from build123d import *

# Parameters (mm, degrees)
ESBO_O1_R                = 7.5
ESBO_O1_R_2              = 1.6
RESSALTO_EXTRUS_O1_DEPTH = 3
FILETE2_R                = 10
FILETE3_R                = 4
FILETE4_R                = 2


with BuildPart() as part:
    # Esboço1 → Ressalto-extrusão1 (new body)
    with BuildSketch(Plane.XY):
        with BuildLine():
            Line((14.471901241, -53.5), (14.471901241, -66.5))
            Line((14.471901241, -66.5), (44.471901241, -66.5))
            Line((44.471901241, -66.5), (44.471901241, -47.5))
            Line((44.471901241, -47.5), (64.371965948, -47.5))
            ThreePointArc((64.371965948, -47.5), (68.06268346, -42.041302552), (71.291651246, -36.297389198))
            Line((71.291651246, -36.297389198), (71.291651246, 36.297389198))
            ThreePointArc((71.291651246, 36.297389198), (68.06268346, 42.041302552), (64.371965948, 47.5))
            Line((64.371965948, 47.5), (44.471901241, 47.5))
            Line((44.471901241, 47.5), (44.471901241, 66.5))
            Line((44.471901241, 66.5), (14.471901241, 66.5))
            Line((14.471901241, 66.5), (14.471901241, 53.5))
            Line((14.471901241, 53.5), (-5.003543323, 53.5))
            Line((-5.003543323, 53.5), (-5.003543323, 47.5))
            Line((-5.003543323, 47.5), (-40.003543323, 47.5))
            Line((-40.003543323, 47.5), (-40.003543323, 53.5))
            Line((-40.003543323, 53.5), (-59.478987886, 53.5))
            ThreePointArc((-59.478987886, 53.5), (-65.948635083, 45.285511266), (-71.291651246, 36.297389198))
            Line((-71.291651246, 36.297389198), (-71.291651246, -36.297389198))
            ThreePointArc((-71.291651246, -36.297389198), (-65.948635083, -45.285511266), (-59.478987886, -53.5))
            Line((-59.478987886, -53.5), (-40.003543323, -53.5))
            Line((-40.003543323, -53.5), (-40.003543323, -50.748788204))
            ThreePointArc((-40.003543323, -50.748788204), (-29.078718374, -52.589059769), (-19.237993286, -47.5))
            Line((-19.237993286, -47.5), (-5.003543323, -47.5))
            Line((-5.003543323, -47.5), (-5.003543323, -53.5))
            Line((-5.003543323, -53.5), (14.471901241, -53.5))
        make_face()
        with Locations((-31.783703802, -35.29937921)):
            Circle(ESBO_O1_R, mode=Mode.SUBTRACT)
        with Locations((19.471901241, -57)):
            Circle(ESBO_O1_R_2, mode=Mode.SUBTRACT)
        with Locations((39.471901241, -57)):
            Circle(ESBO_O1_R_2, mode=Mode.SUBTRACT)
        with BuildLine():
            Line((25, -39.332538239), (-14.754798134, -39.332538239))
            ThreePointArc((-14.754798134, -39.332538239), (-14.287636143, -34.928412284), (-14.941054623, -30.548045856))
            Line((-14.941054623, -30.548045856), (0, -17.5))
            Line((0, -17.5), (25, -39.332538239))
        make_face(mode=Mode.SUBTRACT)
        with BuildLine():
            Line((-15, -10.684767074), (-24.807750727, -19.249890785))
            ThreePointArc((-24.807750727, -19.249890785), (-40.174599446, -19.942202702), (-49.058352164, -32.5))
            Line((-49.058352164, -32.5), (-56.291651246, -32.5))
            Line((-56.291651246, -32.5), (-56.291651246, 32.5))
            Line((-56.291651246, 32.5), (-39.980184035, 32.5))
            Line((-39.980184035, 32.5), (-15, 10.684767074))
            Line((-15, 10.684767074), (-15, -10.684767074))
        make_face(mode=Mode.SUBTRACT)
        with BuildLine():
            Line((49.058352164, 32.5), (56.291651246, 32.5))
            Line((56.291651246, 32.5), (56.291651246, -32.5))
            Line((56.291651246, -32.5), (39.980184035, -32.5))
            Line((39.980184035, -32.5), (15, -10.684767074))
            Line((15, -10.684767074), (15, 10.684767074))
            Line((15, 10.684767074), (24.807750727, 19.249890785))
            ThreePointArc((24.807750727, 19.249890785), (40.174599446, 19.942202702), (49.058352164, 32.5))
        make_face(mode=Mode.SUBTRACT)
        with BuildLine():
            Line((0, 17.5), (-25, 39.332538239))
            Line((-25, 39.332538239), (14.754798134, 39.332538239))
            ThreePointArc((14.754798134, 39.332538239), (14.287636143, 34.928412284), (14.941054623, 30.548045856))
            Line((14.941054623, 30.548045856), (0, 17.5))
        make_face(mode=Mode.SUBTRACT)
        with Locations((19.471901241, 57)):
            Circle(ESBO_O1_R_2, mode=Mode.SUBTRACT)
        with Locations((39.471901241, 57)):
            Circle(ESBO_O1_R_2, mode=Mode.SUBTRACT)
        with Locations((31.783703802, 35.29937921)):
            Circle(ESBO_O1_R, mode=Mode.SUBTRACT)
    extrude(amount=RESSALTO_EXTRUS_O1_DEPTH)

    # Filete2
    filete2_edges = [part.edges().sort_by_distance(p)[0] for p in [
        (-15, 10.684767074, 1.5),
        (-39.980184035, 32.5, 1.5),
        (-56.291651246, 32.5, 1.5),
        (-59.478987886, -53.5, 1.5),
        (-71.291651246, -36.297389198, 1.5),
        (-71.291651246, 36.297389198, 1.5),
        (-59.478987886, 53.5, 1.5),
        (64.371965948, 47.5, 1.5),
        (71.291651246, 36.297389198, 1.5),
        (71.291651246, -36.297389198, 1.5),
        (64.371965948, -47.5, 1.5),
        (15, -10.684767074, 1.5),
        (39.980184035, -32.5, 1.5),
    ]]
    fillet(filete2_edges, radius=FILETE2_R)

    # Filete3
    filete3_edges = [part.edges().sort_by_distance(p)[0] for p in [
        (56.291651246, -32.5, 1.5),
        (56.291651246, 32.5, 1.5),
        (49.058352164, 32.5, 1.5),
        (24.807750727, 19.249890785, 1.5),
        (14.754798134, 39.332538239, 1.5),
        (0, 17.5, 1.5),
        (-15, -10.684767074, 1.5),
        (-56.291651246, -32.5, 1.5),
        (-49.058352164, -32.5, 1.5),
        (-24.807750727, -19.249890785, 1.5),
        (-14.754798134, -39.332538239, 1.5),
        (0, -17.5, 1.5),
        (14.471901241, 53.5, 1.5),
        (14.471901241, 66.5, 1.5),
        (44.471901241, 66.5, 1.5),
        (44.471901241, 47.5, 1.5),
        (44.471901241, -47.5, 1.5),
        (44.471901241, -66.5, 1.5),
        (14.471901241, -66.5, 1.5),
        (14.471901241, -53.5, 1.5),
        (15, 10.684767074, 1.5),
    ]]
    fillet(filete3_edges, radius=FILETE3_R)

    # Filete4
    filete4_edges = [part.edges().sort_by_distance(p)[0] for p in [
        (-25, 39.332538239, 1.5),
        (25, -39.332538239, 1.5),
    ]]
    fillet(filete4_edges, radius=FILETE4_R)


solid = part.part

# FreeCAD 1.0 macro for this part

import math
import FreeCAD as App
import Part
import Sketcher

V = App.Vector
Q = App.Units.Quantity


def edges_at(feature, points):
    """Names of the edges that pass closest to the given points."""
    edges = feature.Shape.Edges
    near = lambda p: min(range(len(edges)), key=lambda i: edges[i].distToShape(Part.Vertex(*p))[0])
    return sorted({f"Edge{near(p) + 1}" for p in points})

doc = App.newDocument("Part")
body = doc.addObject("PartDesign::Body", "Body")

# Sketch on XY plane
sketch1 = body.newObject("Sketcher::SketchObject", "Sketch")
sketch1.AttachmentSupport = (doc.getObject("XY_Plane"), [""])
sketch1.MapMode = "FlatFace"
sketch1.addGeometry([
    Part.LineSegment(V(14.5, -53.5, 0), V(14.5, -66.5, 0)),  # 0
    Part.LineSegment(V(14.5, -66.5, 0), V(44.5, -66.5, 0)),  # 1
    Part.LineSegment(V(44.5, -66.5, 0), V(44.5, -47.5, 0)),  # 2
    Part.LineSegment(V(44.5, -47.5, 0), V(64.4, -47.5, 0)),  # 3
    Part.ArcOfCircle(Part.Circle(V(0, 0, 0), V(0, 0, 1), 80), math.radians(-36.42), math.radians(-26.98)),  # 4
    Part.LineSegment(V(71.3, -36.3, 0), V(71.3, 36.3, 0)),  # 5
    Part.ArcOfCircle(Part.Circle(V(0, 0, 0), V(0, 0, 1), 80), math.radians(26.98), math.radians(36.42)),  # 6
    Part.LineSegment(V(64.4, 47.5, 0), V(44.5, 47.5, 0)),  # 7
    Part.LineSegment(V(44.5, 47.5, 0), V(44.5, 66.5, 0)),  # 8
    Part.LineSegment(V(44.5, 66.5, 0), V(14.5, 66.5, 0)),  # 9
    Part.LineSegment(V(14.5, 66.5, 0), V(14.5, 53.5, 0)),  # 10
    Part.LineSegment(V(14.5, 53.5, 0), V(-5, 53.5, 0)),  # 11
    Part.LineSegment(V(-5, 53.5, 0), V(-5, 47.5, 0)),  # 12
    Part.LineSegment(V(-5, 47.5, 0), V(-40, 47.5, 0)),  # 13
    Part.LineSegment(V(-40, 47.5, 0), V(-40, 53.5, 0)),  # 14
    Part.LineSegment(V(-40, 53.5, 0), V(-59.5, 53.5, 0)),  # 15
    Part.ArcOfCircle(Part.Circle(V(0, 0, 0), V(0, 0, 1), 80), math.radians(138.03), math.radians(153.02)),  # 16
    Part.LineSegment(V(-71.3, 36.3, 0), V(-71.3, -36.3, 0)),  # 17
    Part.ArcOfCircle(Part.Circle(V(0, 0, 0), V(0, 0, 1), 80), math.radians(-153.02), math.radians(-138.03)),  # 18
    Part.LineSegment(V(-59.5, -53.5, 0), V(-40, -53.5, 0)),  # 19
    Part.LineSegment(V(-40, -53.5, 0), V(-40, -50.7, 0)),  # 20
    Part.ArcOfCircle(Part.Circle(V(-31.8, -35.3, 0), V(0, 0, 1), 17.5), math.radians(-118), math.radians(-44)),  # 21
    Part.LineSegment(V(-19.2, -47.5, 0), V(-5, -47.5, 0)),  # 22
    Part.LineSegment(V(-5, -47.5, 0), V(-5, -53.5, 0)),  # 23
    Part.LineSegment(V(-5, -53.5, 0), V(14.5, -53.5, 0)),  # 24
    Part.Circle(V(-31.8, -35.3, 0), V(0, 0, 1), 7.5),  # 25
    Part.Circle(V(19.5, -57, 0), V(0, 0, 1), 1.6),  # 26
    Part.Circle(V(39.5, -57, 0), V(0, 0, 1), 1.6),  # 27
    Part.LineSegment(V(0, -17.5, 0), V(25, -39.3, 0)),  # 28
    Part.LineSegment(V(25, -39.3, 0), V(-14.8, -39.3, 0)),  # 29
    Part.ArcOfCircle(Part.Circle(V(-31.8, -35.3, 0), V(0, 0, 1), 17.5), math.radians(-13), math.radians(16)),  # 30
    Part.LineSegment(V(-14.9, -30.5, 0), V(0, -17.5, 0)),  # 31
    Part.LineSegment(V(-15, 10.7, 0), V(-15, -10.7, 0)),  # 32
    Part.LineSegment(V(-15, -10.7, 0), V(-24.8, -19.2, 0)),  # 33
    Part.ArcOfCircle(Part.Circle(V(-31.8, -35.3, 0), V(0, 0, 1), 17.5), math.radians(67), math.radians(171)),  # 34
    Part.LineSegment(V(-49.1, -32.5, 0), V(-56.3, -32.5, 0)),  # 35
    Part.LineSegment(V(-56.3, -32.5, 0), V(-56.3, 32.5, 0)),  # 36
    Part.LineSegment(V(-56.3, 32.5, 0), V(-40, 32.5, 0)),  # 37
    Part.LineSegment(V(-40, 32.5, 0), V(-15, 10.7, 0)),  # 38
    Part.LineSegment(V(14.9, 30.5, 0), V(0, 17.5, 0)),  # 39
    Part.LineSegment(V(0, 17.5, 0), V(-25, 39.3, 0)),  # 40
    Part.LineSegment(V(-25, 39.3, 0), V(14.8, 39.3, 0)),  # 41
    Part.ArcOfCircle(Part.Circle(V(31.8, 35.3, 0), V(0, 0, 1), 17.5), math.radians(167), math.radians(196)),  # 42
    Part.ArcOfCircle(Part.Circle(V(31.8, 35.3, 0), V(0, 0, 1), 17.5), math.radians(-113), math.radians(-9)),  # 43
    Part.LineSegment(V(49.1, 32.5, 0), V(56.3, 32.5, 0)),  # 44
    Part.LineSegment(V(56.3, 32.5, 0), V(56.3, -32.5, 0)),  # 45
    Part.LineSegment(V(56.3, -32.5, 0), V(40, -32.5, 0)),  # 46
    Part.LineSegment(V(40, -32.5, 0), V(15, -10.7, 0)),  # 47
    Part.LineSegment(V(15, -10.7, 0), V(15, 10.7, 0)),  # 48
    Part.LineSegment(V(15, 10.7, 0), V(24.8, 19.2, 0)),  # 49
    Part.Circle(V(19.5, 57, 0), V(0, 0, 1), 1.6),  # 50
    Part.Circle(V(31.8, 35.3, 0), V(0, 0, 1), 7.5),  # 51
    Part.Circle(V(39.5, 57, 0), V(0, 0, 1), 1.6),  # 52
], False)
sketch1.addConstraint([
    Sketcher.Constraint("Coincident", 0, 2, 1, 1),
    Sketcher.Constraint("Coincident", 1, 2, 2, 1),
    Sketcher.Constraint("Coincident", 2, 2, 3, 1),
    Sketcher.Constraint("Coincident", 3, 2, 4, 1),
    Sketcher.Constraint("Coincident", 4, 2, 5, 1),
    Sketcher.Constraint("Coincident", 5, 2, 6, 1),
    Sketcher.Constraint("Coincident", 6, 2, 7, 1),
    Sketcher.Constraint("Coincident", 7, 2, 8, 1),
    Sketcher.Constraint("Coincident", 8, 2, 9, 1),
    Sketcher.Constraint("Coincident", 9, 2, 10, 1),
    Sketcher.Constraint("Coincident", 10, 2, 11, 1),
    Sketcher.Constraint("Coincident", 11, 2, 12, 1),
    Sketcher.Constraint("Coincident", 12, 2, 13, 1),
    Sketcher.Constraint("Coincident", 13, 2, 14, 1),
    Sketcher.Constraint("Coincident", 14, 2, 15, 1),
    Sketcher.Constraint("Coincident", 15, 2, 16, 1),
    Sketcher.Constraint("Coincident", 16, 2, 17, 1),
    Sketcher.Constraint("Coincident", 17, 2, 18, 1),
    Sketcher.Constraint("Coincident", 18, 2, 19, 1),
    Sketcher.Constraint("Coincident", 19, 2, 20, 1),
    Sketcher.Constraint("Coincident", 20, 2, 21, 1),
    Sketcher.Constraint("Coincident", 21, 2, 22, 1),
    Sketcher.Constraint("Coincident", 22, 2, 23, 1),
    Sketcher.Constraint("Coincident", 23, 2, 24, 1),
    Sketcher.Constraint("Coincident", 24, 2, 0, 1),
    Sketcher.Constraint("Coincident", 28, 2, 29, 1),
    Sketcher.Constraint("Coincident", 29, 2, 30, 1),
    Sketcher.Constraint("Coincident", 30, 2, 31, 1),
    Sketcher.Constraint("Coincident", 31, 2, 28, 1),
    Sketcher.Constraint("Coincident", 32, 2, 33, 1),
    Sketcher.Constraint("Coincident", 33, 2, 34, 1),
    Sketcher.Constraint("Coincident", 34, 2, 35, 1),
    Sketcher.Constraint("Coincident", 35, 2, 36, 1),
    Sketcher.Constraint("Coincident", 36, 2, 37, 1),
    Sketcher.Constraint("Coincident", 37, 2, 38, 1),
    Sketcher.Constraint("Coincident", 38, 2, 32, 1),
    Sketcher.Constraint("Coincident", 39, 2, 40, 1),
    Sketcher.Constraint("Coincident", 40, 2, 41, 1),
    Sketcher.Constraint("Coincident", 41, 2, 42, 1),
    Sketcher.Constraint("Coincident", 42, 2, 39, 1),
    Sketcher.Constraint("Coincident", 43, 2, 44, 1),
    Sketcher.Constraint("Coincident", 44, 2, 45, 1),
    Sketcher.Constraint("Coincident", 45, 2, 46, 1),
    Sketcher.Constraint("Coincident", 46, 2, 47, 1),
    Sketcher.Constraint("Coincident", 47, 2, 48, 1),
    Sketcher.Constraint("Coincident", 48, 2, 49, 1),
    Sketcher.Constraint("Coincident", 49, 2, 43, 1),
    Sketcher.Constraint("Vertical", 0),
    Sketcher.Constraint("Horizontal", 1),
    Sketcher.Constraint("Vertical", 2),
    Sketcher.Constraint("Horizontal", 3),
    Sketcher.Constraint("Vertical", 5),
    Sketcher.Constraint("Horizontal", 7),
    Sketcher.Constraint("Vertical", 8),
    Sketcher.Constraint("Horizontal", 9),
    Sketcher.Constraint("Vertical", 10),
    Sketcher.Constraint("Horizontal", 11),
    Sketcher.Constraint("Vertical", 12),
    Sketcher.Constraint("Horizontal", 13),
    Sketcher.Constraint("Vertical", 14),
    Sketcher.Constraint("Horizontal", 15),
    Sketcher.Constraint("Vertical", 17),
    Sketcher.Constraint("Horizontal", 19),
    Sketcher.Constraint("Vertical", 20),
    Sketcher.Constraint("Horizontal", 22),
    Sketcher.Constraint("Vertical", 23),
    Sketcher.Constraint("Horizontal", 24),
    Sketcher.Constraint("Horizontal", 29),
    Sketcher.Constraint("Vertical", 32),
    Sketcher.Constraint("Horizontal", 35),
    Sketcher.Constraint("Vertical", 36),
    Sketcher.Constraint("Horizontal", 37),
    Sketcher.Constraint("Horizontal", 41),
    Sketcher.Constraint("Horizontal", 44),
    Sketcher.Constraint("Vertical", 45),
    Sketcher.Constraint("Horizontal", 46),
    Sketcher.Constraint("Vertical", 48),
    Sketcher.Constraint("Coincident", 4, 3, -1, 1),
    Sketcher.Constraint("Coincident", 6, 3, -1, 1),
    Sketcher.Constraint("Coincident", 16, 3, -1, 1),
    Sketcher.Constraint("Coincident", 18, 3, -1, 1),
    Sketcher.Constraint("Coincident", 25, 3, 21, 3),
    Sketcher.Constraint("Coincident", 30, 3, 21, 3),
    Sketcher.Constraint("Coincident", 34, 3, 21, 3),
    Sketcher.Constraint("Coincident", 43, 3, 42, 3),
    Sketcher.Constraint("Coincident", 51, 3, 42, 3),
    Sketcher.Constraint("Equal", 4, 6),
    Sketcher.Constraint("Equal", 6, 16),
    Sketcher.Constraint("Equal", 16, 18),
    Sketcher.Constraint("Equal", 26, 27),
    Sketcher.Constraint("Equal", 21, 30),
    Sketcher.Constraint("Equal", 30, 34),
    Sketcher.Constraint("Equal", 34, 42),
    Sketcher.Constraint("Equal", 42, 43),
    Sketcher.Constraint("Equal", 27, 50),
    Sketcher.Constraint("Equal", 25, 51),
    Sketcher.Constraint("Equal", 50, 52),
    Sketcher.Constraint("Symmetric", 21, 3, 42, 3, -1, 1),
    Sketcher.Constraint("Symmetric", 31, 2, 39, 2, -1, 1),
    Sketcher.Constraint("Symmetric", 28, 2, 40, 2, -1, 1),
    Sketcher.Constraint("Symmetric", 35, 2, 44, 2, -1, 1),
    Sketcher.Constraint("Symmetric", 37, 2, 46, 2, -1, 1),
    Sketcher.Constraint("Symmetric", 38, 2, 47, 2, -1, 1),
    Sketcher.Constraint("Symmetric", 26, 3, 50, 3, -1),
    Sketcher.Constraint("Symmetric", 27, 3, 52, 3, -1),
    Sketcher.Constraint("Symmetric", 2, 2, 7, 2, -1),
    Sketcher.Constraint("Symmetric", 0, 2, 9, 2, -1),
    Sketcher.Constraint("Symmetric", 14, 2, 19, 2, -1),
    Sketcher.Constraint("Symmetric", 12, 2, 22, 2, -1),
    Sketcher.Constraint("PointOnObject", 31, 2, -2),
    Sketcher.Constraint("Parallel", 31, 33),
    Sketcher.Constraint("Parallel", 28, 38),
    Sketcher.Constraint("Parallel", 33, 39),
    Sketcher.Constraint("Parallel", 39, 49),
    Sketcher.Constraint("Horizontal", 26, 3, 27, 3),
    Sketcher.Constraint("Horizontal", 7, 2, 12, 2),
    Sketcher.Constraint("Horizontal", 11, 2, 14, 2),
    Sketcher.Constraint("Horizontal", 5, 2, 16, 2),
    Sketcher.Constraint("Horizontal", 19, 2, 23, 2),
    Sketcher.Constraint("Horizontal", 37, 2, 43, 2),
    Sketcher.Constraint("Horizontal", 32, 2, 47, 2),
    Sketcher.Constraint("Horizontal", 38, 2, 48, 2),
    Sketcher.Constraint("Equal", 11, 15),
    Sketcher.Constraint("Diameter", 25, Q("15 mm")),
    Sketcher.Constraint("Radius", 4, Q("80 mm")),
    Sketcher.Constraint("Diameter", 26, Q("3.2 mm")),
    Sketcher.Constraint("Radius", 21, Q("17.5 mm")),
    Sketcher.Constraint("DistanceX", 1, 1, 1, 2, Q("30 mm")),
    Sketcher.Constraint("DistanceX", 13, 2, 13, 1, Q("35 mm")),
    Sketcher.Constraint("DistanceY", 0, 2, 0, 1, Q("13 mm")),
    Sketcher.Constraint("DistanceY", 2, 1, 2, 2, Q("19 mm")),
    Sketcher.Constraint("DistanceY", 36, 1, 36, 2, Q("65 mm")),
    Sketcher.Constraint("DistanceY", 26, 3, -1, 1, Q("57 mm")),
    Sketcher.Constraint("DistanceX", -1, 1, 28, 2, Q("25 mm")),
    Sketcher.Constraint("DistanceX", 32, 2, -1, 1, Q("15 mm")),
    Sketcher.Constraint("DistanceY", 0, 2, -1, 1, Q("66.5 mm")),
    Sketcher.Constraint("DistanceY", 31, 2, -1, 1, Q("17.5 mm")),
    Sketcher.Constraint("DistanceX", 29, 2, 29, 1, Q("39.754798 mm")),
    Sketcher.Constraint("DistanceX", 35, 2, 35, 1, Q("7.233299 mm")),
    Sketcher.Constraint("DistanceX", 22, 1, 22, 2, Q("14.23445 mm")),
    Sketcher.Constraint("DistanceY", 5, 1, 5, 2, Q("72.594778 mm")),
    Sketcher.Constraint("DistanceY", 20, 1, 20, 2, Q("2.751212 mm")),
    Sketcher.Constraint("DistanceX", -1, 1, 26, 3, Q("19.471901 mm")),
    Sketcher.Constraint("DistanceX", -1, 1, 27, 3, Q("39.471901 mm")),
    Sketcher.Constraint("DistanceX", -1, 1, 0, 2, Q("14.471901 mm")),
    Sketcher.Constraint("Distance", 38, Q("33.164951 mm")),
    Sketcher.Constraint("DistanceX", 33, 2, -1, 1, Q("24.807751 mm")),
])
pad1 = body.newObject("PartDesign::Pad", "Pad")
pad1.Profile = sketch1
pad1.Length = 3
doc.recompute()

fillet = body.newObject("PartDesign::Fillet", "Fillet")
fillet.Base = (pad1, edges_at(pad1, [
    (-15, 10.685, 1.5),
    (-39.98, 32.5, 1.5),
    (-56.292, 32.5, 1.5),
    (-59.479, -53.5, 1.5),
    (-71.292, -36.297, 1.5),
    (-71.292, 36.297, 1.5),
    (-59.479, 53.5, 1.5),
    (64.372, 47.5, 1.5),
    (71.292, 36.297, 1.5),
    (71.292, -36.297, 1.5),
    (64.372, -47.5, 1.5),
    (15, -10.685, 1.5),
    (39.98, -32.5, 1.5),
]))
fillet.Radius = 10
doc.recompute()

fillet2 = body.newObject("PartDesign::Fillet", "Fillet001")
fillet2.Base = (fillet, edges_at(fillet, [
    (56.292, -32.5, 1.5),
    (56.292, 32.5, 1.5),
    (49.058, 32.5, 1.5),
    (24.808, 19.25, 1.5),
    (14.755, 39.333, 1.5),
    (0, 17.5, 1.5),
    (-15, -10.685, 1.5),
    (-56.292, -32.5, 1.5),
    (-49.058, -32.5, 1.5),
    (-24.808, -19.25, 1.5),
    (-14.755, -39.333, 1.5),
    (0, -17.5, 1.5),
    (14.472, 53.5, 1.5),
    (14.472, 66.5, 1.5),
    (44.472, 66.5, 1.5),
    (44.472, 47.5, 1.5),
    (44.472, -47.5, 1.5),
    (44.472, -66.5, 1.5),
    (14.472, -66.5, 1.5),
    (14.472, -53.5, 1.5),
    (15, 10.685, 1.5),
]))
fillet2.Radius = 4
doc.recompute()

fillet3 = body.newObject("PartDesign::Fillet", "Fillet002")
fillet3.Base = (fillet2, edges_at(fillet2, [(-25, 39.333, 1.5), (25, -39.333, 1.5)]))
fillet3.Radius = 2

doc.recompute()
